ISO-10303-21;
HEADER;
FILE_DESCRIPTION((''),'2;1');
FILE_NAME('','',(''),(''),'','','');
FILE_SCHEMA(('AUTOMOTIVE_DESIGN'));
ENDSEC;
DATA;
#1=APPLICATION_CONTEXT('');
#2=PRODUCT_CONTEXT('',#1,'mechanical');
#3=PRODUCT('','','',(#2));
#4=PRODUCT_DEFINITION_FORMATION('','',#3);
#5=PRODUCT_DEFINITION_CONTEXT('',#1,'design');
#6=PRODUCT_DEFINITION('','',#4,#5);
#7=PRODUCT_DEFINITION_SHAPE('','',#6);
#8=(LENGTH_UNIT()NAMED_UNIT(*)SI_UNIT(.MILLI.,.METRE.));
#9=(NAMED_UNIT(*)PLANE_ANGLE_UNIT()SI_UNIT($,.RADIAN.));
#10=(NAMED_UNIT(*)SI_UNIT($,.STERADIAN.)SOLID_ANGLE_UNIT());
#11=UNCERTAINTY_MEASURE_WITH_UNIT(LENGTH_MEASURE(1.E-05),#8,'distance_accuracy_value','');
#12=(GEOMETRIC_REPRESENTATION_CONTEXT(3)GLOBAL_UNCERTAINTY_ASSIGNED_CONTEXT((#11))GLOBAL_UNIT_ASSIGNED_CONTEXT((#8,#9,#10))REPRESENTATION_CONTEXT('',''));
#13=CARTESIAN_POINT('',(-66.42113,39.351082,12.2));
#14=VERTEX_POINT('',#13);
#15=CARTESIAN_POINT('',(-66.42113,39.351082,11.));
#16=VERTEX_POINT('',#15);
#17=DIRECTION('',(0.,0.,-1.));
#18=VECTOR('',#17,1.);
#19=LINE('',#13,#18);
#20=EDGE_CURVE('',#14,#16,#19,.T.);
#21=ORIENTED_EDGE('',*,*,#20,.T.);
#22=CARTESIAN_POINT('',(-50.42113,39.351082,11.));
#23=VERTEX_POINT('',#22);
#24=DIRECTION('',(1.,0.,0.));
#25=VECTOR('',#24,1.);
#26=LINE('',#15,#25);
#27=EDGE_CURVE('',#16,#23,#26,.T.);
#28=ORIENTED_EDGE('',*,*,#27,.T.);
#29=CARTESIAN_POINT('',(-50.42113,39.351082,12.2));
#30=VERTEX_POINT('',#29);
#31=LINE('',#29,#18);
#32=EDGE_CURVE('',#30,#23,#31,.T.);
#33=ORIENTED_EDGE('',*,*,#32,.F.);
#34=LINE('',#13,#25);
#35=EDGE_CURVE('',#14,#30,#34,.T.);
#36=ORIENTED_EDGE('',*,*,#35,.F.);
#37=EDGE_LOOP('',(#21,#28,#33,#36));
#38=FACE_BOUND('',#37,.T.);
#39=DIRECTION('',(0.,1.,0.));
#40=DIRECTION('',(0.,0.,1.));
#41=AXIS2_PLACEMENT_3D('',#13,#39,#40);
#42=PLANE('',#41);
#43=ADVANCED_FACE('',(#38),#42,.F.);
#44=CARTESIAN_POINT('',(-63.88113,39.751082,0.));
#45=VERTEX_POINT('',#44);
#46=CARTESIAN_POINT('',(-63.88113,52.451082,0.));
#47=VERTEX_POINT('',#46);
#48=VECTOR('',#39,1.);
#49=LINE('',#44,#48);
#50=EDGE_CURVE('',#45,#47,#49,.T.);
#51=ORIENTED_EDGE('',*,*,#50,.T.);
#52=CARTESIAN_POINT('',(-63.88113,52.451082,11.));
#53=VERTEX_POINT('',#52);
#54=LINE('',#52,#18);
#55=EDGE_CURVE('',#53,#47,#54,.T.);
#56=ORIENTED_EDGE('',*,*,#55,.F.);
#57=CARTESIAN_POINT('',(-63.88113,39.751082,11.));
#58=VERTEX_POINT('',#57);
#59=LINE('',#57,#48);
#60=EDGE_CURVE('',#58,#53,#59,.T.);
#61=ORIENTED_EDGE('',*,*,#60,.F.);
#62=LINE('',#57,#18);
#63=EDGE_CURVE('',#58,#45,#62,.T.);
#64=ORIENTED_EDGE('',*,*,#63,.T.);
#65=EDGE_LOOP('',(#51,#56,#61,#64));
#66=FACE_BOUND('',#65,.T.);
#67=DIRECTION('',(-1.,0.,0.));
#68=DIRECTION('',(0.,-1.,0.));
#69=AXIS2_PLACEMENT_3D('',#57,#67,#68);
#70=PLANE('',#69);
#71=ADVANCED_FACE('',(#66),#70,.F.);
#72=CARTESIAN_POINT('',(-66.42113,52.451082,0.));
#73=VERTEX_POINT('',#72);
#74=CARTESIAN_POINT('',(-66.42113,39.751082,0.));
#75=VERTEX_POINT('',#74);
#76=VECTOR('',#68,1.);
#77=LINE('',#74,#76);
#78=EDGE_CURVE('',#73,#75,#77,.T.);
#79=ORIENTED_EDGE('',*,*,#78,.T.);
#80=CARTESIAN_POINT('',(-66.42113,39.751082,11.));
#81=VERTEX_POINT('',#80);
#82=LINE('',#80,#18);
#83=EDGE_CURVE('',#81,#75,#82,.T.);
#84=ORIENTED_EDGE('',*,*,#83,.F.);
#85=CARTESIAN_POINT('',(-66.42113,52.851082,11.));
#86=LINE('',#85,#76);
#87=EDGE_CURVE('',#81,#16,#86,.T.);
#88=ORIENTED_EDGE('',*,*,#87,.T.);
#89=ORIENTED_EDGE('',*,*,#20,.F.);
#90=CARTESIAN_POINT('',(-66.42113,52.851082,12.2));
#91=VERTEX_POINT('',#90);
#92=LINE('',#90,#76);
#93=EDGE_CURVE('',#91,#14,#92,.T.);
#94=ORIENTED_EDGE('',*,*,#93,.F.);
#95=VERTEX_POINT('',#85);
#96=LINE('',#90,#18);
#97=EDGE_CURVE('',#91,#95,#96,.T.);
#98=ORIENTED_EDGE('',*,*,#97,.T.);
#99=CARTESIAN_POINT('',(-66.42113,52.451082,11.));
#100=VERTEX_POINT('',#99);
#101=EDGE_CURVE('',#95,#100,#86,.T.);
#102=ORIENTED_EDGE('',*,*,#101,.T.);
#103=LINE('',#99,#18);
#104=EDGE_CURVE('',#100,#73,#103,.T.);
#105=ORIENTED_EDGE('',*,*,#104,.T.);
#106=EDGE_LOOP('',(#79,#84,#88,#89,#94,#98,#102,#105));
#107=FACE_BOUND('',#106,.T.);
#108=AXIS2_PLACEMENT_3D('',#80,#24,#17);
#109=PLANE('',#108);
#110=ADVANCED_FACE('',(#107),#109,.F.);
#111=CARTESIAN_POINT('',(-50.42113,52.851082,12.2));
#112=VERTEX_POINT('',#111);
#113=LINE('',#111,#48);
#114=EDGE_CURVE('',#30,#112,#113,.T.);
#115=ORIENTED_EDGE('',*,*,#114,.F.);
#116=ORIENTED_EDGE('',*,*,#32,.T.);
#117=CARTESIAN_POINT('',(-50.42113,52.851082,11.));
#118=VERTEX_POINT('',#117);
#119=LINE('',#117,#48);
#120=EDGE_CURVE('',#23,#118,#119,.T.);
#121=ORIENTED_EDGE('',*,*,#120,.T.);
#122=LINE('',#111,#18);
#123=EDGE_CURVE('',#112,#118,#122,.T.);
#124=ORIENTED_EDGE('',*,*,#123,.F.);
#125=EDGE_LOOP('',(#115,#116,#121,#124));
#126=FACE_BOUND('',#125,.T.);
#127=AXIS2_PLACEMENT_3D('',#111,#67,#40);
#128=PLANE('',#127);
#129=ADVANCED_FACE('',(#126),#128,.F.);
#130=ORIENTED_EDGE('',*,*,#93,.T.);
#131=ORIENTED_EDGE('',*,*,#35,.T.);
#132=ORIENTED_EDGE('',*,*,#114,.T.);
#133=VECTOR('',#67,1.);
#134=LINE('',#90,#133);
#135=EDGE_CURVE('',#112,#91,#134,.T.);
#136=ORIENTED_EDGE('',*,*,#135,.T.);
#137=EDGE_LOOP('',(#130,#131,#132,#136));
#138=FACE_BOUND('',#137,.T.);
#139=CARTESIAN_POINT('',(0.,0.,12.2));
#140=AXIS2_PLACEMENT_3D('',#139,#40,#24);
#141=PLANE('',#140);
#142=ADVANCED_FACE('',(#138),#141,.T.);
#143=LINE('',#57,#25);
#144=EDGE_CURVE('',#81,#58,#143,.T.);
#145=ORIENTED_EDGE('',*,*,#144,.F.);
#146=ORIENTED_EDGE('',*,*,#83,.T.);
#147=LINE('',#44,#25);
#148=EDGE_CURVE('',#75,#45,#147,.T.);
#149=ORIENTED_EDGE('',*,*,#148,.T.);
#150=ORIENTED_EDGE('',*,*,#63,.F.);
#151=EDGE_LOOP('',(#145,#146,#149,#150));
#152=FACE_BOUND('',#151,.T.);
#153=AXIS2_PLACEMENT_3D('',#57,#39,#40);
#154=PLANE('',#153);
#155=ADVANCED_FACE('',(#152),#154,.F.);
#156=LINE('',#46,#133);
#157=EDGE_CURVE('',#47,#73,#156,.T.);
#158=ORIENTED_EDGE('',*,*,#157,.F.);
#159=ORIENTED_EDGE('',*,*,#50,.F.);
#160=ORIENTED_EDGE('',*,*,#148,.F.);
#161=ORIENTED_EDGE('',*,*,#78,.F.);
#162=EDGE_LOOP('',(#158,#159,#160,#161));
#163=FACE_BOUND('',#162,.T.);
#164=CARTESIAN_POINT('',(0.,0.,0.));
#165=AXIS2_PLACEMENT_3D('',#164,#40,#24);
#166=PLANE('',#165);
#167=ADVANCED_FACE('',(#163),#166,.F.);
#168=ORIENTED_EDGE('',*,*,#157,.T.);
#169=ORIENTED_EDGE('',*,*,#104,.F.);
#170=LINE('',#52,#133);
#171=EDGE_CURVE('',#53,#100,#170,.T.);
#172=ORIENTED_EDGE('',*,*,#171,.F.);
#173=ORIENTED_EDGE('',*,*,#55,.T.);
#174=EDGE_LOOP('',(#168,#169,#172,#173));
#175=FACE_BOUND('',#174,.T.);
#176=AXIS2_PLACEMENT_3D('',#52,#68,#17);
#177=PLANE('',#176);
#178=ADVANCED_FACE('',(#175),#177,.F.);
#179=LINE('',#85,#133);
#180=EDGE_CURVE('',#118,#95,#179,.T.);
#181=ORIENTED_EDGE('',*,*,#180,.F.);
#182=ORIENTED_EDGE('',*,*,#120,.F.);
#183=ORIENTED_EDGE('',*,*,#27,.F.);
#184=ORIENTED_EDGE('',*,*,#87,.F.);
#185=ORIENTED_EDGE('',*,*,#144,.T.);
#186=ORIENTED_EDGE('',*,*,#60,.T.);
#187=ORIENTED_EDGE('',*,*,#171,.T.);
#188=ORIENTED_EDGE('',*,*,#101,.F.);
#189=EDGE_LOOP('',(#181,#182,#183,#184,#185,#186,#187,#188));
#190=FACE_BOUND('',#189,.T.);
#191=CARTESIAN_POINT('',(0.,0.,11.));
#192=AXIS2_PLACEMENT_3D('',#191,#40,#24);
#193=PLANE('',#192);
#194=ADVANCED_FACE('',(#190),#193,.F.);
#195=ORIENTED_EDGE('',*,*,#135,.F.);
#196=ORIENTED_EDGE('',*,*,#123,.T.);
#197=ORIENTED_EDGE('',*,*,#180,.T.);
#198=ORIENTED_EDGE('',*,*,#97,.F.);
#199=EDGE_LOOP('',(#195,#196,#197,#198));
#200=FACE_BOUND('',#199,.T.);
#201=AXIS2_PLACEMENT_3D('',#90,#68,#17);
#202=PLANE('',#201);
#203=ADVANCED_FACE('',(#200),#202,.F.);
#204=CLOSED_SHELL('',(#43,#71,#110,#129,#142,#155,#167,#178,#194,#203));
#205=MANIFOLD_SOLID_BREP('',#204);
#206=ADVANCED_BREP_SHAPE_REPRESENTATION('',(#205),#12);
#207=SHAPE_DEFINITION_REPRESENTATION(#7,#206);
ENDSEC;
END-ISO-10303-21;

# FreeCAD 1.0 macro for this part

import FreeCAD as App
import Part
import Sketcher
from FreeCAD import Vector
Q = App.Units.Quantity

doc = App.newDocument("Part")
body = doc.addObject("PartDesign::Body", "Body")

# Sketch on XY plane
sketch1 = body.newObject("Sketcher::SketchObject", "Sketch")
sketch1.AttachmentSupport = (doc.getObject("XY_Plane"), [""])
sketch1.MapMode = "FlatFace"
sketch1.addGeometry([
    Part.LineSegment(Vector(-66.4, 52.5, 0), Vector(-66.4, 39.8, 0)),
    Part.LineSegment(Vector(-66.4, 39.8, 0), Vector(-63.9, 39.8, 0)),
    Part.LineSegment(Vector(-63.9, 39.8, 0), Vector(-63.9, 52.5, 0)),
    Part.LineSegment(Vector(-63.9, 52.5, 0), Vector(-66.4, 52.5, 0)),
], False)
sketch1.addConstraint([
    Sketcher.Constraint("Coincident", 0, 2, 1, 1),
    Sketcher.Constraint("Coincident", 1, 2, 2, 1),
    Sketcher.Constraint("Coincident", 2, 2, 3, 1),
    Sketcher.Constraint("Coincident", 3, 2, 0, 1),
    Sketcher.Constraint("Vertical", 0),
    Sketcher.Constraint("Horizontal", 1),
    Sketcher.Constraint("Vertical", 2),
    Sketcher.Constraint("Horizontal", 3),
    Sketcher.Constraint("DistanceY", 0, 2, 0, 1, Q("12.7 mm")),
    Sketcher.Constraint("DistanceX", 1, 1, 1, 2, Q("2.54 mm")),
    Sketcher.Constraint("DistanceX", 0, 2, -1, 1, Q("66.42113 mm")),
    Sketcher.Constraint("DistanceY", -1, 1, 0, 2, Q("39.751082 mm")),
])
pad1 = body.newObject("PartDesign::Pad", "Pad")
pad1.Profile = sketch1
pad1.Length = 11

# Sketch on XY plane
sketch2 = body.newObject("Sketcher::SketchObject", "Sketch001")
sketch2.AttachmentSupport = (doc.getObject("XY_Plane"), [""])
sketch2.MapMode = "FlatFace"
sketch2.AttachmentOffset = App.Placement(Vector(0, 0, 11), App.Rotation())
sketch2.addGeometry([
    Part.LineSegment(Vector(-66, 53, 0), Vector(-66, 39, 0)),
    Part.LineSegment(Vector(-66, 39, 0), Vector(-50, 39, 0)),
    Part.LineSegment(Vector(-50, 39, 0), Vector(-50, 53, 0)),
    Part.LineSegment(Vector(-50, 53, 0), Vector(-66, 53, 0)),
], False)
sketch2.addConstraint([
    Sketcher.Constraint("Coincident", 0, 2, 1, 1),
    Sketcher.Constraint("Coincident", 1, 2, 2, 1),
    Sketcher.Constraint("Coincident", 2, 2, 3, 1),
    Sketcher.Constraint("Coincident", 3, 2, 0, 1),
    Sketcher.Constraint("Vertical", 0),
    Sketcher.Constraint("Horizontal", 1),
    Sketcher.Constraint("Vertical", 2),
    Sketcher.Constraint("Horizontal", 3),
    Sketcher.Constraint("DistanceX", 1, 1, 1, 2, Q("16 mm")),
    Sketcher.Constraint("DistanceY", 0, 2, 0, 1, Q("13.5 mm")),
    Sketcher.Constraint("DistanceX", 0, 2, -1, 1, Q("66.42113 mm")),
    Sketcher.Constraint("DistanceY", -1, 1, 0, 2, Q("39.351082 mm")),
])
pad2 = body.newObject("PartDesign::Pad", "Pad001")
pad2.Profile = sketch2
pad2.Length = 1.2

doc.recompute()
